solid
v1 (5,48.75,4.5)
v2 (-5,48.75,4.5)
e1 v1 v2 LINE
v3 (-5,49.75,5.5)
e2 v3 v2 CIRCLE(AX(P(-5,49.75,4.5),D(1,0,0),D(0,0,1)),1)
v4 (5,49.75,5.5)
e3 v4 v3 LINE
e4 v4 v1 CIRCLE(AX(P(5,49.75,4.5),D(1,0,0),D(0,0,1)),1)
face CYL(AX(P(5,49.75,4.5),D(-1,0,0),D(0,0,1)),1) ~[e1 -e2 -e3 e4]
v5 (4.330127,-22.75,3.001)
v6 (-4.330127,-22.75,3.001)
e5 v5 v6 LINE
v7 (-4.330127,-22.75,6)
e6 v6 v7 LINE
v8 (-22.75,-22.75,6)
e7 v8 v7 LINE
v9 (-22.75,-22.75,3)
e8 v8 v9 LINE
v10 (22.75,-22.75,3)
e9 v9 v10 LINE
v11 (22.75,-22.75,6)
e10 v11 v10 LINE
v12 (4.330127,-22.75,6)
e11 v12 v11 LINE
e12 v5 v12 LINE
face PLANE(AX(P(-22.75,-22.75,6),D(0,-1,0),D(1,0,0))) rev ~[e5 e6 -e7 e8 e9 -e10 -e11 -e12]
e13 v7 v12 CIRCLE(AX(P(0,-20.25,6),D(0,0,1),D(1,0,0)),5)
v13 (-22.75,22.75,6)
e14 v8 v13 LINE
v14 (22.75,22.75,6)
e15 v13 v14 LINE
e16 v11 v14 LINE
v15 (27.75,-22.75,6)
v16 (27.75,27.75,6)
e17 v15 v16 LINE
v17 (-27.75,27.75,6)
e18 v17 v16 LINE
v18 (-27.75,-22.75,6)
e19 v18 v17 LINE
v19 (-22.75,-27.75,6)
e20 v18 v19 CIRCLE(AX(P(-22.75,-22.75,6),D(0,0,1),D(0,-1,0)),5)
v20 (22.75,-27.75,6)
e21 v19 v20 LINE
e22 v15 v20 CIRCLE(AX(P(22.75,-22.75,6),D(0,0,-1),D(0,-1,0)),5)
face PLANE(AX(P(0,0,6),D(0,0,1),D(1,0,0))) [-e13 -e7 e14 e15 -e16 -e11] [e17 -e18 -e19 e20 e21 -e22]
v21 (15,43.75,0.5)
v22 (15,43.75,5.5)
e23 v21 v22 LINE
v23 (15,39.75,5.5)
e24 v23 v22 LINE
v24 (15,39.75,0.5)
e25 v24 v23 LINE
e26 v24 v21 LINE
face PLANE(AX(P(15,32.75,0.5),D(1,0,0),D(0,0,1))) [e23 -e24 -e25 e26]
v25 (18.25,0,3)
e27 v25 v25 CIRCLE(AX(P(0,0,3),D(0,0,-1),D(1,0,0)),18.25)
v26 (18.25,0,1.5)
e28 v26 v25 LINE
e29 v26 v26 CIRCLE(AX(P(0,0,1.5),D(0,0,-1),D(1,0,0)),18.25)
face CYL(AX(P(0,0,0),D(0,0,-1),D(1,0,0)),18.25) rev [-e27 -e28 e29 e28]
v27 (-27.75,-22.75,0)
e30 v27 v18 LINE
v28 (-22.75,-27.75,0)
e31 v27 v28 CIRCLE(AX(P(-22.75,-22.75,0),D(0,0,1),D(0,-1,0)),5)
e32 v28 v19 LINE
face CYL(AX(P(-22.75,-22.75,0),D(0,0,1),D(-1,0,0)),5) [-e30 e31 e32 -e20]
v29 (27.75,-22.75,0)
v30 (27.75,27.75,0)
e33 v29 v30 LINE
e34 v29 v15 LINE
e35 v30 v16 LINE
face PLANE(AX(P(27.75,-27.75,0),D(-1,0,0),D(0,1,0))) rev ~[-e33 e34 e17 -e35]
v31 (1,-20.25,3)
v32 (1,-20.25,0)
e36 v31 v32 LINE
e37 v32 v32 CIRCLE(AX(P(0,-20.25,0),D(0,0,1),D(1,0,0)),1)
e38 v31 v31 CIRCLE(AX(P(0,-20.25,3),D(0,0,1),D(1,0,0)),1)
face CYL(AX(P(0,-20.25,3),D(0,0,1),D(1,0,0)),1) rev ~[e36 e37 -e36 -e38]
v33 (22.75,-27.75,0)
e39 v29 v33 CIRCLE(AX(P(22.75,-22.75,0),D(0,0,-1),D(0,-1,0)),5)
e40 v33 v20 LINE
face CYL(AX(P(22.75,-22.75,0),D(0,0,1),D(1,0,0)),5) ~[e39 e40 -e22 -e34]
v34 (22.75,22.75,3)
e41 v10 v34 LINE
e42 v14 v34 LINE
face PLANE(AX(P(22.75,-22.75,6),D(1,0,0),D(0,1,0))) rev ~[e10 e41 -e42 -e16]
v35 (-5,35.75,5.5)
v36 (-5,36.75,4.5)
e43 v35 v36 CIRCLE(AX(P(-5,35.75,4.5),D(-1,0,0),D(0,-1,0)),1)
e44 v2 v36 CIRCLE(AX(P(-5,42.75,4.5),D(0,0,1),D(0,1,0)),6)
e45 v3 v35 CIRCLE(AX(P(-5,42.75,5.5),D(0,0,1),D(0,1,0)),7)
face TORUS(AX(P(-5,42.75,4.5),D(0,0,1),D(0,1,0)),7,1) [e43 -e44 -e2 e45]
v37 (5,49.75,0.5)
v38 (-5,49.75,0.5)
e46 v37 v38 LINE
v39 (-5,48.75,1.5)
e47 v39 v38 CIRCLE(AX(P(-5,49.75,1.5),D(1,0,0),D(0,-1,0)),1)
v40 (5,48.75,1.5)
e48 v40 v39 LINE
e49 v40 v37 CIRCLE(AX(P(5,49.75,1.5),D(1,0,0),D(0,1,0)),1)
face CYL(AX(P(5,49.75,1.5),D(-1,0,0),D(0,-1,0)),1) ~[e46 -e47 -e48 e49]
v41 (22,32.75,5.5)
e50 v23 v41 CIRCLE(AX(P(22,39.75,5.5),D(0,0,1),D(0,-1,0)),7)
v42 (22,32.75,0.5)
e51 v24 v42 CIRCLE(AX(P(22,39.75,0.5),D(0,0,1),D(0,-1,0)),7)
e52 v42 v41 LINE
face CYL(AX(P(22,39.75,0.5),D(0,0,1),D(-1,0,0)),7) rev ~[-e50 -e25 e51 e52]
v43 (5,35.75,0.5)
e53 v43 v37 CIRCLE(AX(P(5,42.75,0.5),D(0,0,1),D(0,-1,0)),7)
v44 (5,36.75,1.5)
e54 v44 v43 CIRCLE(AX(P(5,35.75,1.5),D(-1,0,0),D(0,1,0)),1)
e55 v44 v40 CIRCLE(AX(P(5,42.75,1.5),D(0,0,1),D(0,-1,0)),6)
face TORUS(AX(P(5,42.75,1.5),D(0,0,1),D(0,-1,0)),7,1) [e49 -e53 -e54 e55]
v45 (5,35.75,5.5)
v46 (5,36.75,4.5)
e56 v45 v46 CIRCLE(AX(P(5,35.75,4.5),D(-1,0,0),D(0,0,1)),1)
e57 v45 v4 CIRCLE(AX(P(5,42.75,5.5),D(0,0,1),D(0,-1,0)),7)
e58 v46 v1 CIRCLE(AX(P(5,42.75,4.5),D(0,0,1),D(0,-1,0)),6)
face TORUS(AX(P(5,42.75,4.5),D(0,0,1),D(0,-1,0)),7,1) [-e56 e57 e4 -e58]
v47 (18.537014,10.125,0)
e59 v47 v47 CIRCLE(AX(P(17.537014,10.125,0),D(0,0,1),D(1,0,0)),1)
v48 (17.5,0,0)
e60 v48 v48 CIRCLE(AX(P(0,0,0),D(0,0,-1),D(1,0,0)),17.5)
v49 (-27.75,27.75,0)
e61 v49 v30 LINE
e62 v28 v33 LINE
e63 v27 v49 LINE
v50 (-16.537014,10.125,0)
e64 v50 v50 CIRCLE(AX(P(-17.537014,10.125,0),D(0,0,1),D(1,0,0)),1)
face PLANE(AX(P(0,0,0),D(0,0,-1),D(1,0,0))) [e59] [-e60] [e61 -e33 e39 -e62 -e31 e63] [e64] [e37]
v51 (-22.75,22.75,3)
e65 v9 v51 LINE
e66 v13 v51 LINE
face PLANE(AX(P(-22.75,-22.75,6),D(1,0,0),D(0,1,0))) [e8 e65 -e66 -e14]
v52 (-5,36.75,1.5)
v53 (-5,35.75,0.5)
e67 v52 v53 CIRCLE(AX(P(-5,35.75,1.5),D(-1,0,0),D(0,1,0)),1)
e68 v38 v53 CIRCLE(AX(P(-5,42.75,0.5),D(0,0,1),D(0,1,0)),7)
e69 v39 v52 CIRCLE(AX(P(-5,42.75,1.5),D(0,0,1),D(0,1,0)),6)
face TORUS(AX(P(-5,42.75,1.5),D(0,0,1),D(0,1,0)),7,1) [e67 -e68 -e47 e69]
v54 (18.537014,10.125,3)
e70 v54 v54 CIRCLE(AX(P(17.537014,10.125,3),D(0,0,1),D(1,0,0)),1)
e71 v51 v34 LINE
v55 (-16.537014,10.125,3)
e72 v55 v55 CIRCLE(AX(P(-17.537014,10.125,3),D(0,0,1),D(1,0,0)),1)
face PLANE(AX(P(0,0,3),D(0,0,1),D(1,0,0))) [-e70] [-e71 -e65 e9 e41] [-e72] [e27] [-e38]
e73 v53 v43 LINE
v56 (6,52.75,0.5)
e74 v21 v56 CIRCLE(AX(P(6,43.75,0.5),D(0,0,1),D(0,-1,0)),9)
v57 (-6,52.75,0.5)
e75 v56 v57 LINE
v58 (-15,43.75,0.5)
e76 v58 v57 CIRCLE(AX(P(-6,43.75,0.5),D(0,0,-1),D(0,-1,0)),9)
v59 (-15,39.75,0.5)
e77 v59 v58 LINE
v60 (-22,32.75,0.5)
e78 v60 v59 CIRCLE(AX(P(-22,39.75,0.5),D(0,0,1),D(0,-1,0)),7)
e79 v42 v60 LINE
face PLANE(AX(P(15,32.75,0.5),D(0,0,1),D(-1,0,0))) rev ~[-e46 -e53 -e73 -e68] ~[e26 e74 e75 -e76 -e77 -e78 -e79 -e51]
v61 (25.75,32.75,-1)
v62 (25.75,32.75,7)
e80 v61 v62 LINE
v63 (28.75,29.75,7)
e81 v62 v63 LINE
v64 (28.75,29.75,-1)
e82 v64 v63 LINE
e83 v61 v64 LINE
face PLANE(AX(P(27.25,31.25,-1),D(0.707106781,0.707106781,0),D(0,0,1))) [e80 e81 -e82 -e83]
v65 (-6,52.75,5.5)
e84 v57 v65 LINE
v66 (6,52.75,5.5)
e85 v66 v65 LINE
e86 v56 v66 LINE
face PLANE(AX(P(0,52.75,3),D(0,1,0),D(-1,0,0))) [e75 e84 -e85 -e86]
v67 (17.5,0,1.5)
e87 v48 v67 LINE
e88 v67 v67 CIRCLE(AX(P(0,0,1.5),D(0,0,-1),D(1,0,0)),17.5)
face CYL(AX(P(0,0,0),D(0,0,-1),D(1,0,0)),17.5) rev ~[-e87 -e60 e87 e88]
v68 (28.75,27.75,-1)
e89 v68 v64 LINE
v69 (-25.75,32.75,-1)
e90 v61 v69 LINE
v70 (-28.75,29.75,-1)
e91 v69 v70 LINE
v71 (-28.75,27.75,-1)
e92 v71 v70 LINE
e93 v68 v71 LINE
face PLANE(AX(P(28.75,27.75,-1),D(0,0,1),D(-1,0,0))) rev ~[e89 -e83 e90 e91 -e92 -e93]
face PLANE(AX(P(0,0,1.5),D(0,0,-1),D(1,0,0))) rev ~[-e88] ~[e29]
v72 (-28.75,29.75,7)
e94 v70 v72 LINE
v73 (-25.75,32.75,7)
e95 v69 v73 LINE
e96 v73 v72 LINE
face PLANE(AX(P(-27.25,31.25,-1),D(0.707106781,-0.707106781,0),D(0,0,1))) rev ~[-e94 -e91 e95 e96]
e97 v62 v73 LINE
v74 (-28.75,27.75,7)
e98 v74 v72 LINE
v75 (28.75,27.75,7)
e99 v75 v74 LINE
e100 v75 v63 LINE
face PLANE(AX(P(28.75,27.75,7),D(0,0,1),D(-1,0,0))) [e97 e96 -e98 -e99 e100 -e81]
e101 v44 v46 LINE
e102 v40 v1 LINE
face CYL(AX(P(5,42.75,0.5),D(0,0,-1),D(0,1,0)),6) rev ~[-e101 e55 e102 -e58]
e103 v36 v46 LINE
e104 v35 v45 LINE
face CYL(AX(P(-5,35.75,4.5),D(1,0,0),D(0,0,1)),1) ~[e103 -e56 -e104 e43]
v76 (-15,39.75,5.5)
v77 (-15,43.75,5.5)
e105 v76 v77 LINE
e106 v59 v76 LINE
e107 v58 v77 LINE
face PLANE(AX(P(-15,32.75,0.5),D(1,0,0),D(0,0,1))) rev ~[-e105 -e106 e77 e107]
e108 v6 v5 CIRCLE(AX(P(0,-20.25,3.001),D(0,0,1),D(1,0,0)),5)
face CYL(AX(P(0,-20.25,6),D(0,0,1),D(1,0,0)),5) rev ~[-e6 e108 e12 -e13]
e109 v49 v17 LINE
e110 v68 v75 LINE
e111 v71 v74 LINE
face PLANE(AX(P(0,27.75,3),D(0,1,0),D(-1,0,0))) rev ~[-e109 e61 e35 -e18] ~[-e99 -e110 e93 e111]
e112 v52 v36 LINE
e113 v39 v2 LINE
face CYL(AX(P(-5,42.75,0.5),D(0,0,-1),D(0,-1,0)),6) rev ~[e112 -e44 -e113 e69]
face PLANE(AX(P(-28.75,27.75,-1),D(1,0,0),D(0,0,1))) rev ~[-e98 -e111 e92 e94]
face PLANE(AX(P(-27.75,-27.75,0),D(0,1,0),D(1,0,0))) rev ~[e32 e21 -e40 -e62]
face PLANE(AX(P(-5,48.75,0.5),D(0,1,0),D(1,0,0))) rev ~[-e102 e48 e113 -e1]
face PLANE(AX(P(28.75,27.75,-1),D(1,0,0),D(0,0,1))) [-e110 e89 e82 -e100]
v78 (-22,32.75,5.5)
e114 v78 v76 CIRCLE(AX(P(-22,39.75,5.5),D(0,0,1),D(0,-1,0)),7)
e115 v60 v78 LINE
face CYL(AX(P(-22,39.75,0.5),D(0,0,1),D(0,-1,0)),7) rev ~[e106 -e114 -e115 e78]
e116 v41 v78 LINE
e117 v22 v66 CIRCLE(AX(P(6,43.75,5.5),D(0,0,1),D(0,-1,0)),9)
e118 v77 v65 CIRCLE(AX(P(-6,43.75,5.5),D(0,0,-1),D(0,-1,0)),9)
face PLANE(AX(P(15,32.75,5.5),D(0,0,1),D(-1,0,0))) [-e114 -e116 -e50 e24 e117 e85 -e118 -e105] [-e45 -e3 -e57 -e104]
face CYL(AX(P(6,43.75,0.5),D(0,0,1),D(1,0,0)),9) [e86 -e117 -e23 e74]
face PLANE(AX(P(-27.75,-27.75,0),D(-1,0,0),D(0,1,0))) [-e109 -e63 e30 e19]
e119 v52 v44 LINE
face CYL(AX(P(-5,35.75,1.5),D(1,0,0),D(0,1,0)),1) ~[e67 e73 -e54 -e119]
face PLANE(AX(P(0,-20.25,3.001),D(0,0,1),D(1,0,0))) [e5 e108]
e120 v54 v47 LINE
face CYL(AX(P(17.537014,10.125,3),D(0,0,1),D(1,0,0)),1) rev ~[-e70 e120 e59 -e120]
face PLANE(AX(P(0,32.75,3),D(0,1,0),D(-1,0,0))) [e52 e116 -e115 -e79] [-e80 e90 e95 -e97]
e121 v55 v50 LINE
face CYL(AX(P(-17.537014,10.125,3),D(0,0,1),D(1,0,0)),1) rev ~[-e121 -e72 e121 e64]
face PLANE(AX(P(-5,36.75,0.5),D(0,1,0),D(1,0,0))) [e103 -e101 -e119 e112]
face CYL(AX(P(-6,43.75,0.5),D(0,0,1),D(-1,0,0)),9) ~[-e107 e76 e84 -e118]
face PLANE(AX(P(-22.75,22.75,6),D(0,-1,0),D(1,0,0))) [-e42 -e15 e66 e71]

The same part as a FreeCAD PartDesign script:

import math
import FreeCAD as App
import Part
import Sketcher
Q = App.Units.Quantity


def edges_at(feature, points):
    """Names of the edges that pass closest to the given points."""
    edges = feature.Shape.Edges
    near = lambda p: min(range(len(edges)), key=lambda i: edges[i].distToShape(Part.Vertex(*p))[0])
    return sorted({f"Edge{near(p) + 1}" for p in points})

doc = App.newDocument("Part")
body = doc.addObject("PartDesign::Body", "Body")

# Sketch on XY plane
sketch1 = body.newObject("Sketcher::SketchObject", "Sketch")
sketch1.AttachmentSupport = (doc.getObject("XY_Plane"), [""])
sketch1.MapMode = "FlatFace"
sketch1.addGeometry([
    Part.LineSegment(App.Vector(-28, 28, 0), App.Vector(-28, -28, 0)),  # 0
    Part.LineSegment(App.Vector(-28, -28, 0), App.Vector(28, -28, 0)),  # 1
    Part.LineSegment(App.Vector(28, -28, 0), App.Vector(28, 28, 0)),  # 2
    Part.LineSegment(App.Vector(28, 28, 0), App.Vector(-28, 28, 0)),  # 3
    Part.Circle(App.Vector(0, 0, 0), App.Vector(0, 0, 1), 18),  # 4
], False)
sketch1.addConstraint([
    Sketcher.Constraint("Coincident", 0, 2, 1, 1),
    Sketcher.Constraint("Coincident", 1, 2, 2, 1),
    Sketcher.Constraint("Coincident", 2, 2, 3, 1),
    Sketcher.Constraint("Coincident", 3, 2, 0, 1),
    Sketcher.Constraint("Vertical", 0),
    Sketcher.Constraint("Horizontal", 1),
    Sketcher.Constraint("Vertical", 2),
    Sketcher.Constraint("Horizontal", 3),
    Sketcher.Constraint("Coincident", 4, 3, -1, 1),
    Sketcher.Constraint("Symmetric", 0, 2, 2, 2, -1, 1),
    Sketcher.Constraint("Equal", 3, 0),
    Sketcher.Constraint("Diameter", 4, Q("36.5 mm")),
    Sketcher.Constraint("DistanceX", 1, 1, 1, 2, Q("55.5 mm")),
])
pad1 = body.newObject("PartDesign::Pad", "Pad")
pad1.Profile = sketch1
pad1.Length = 6

# Sketch on XZ plane
sketch2 = body.newObject("Sketcher::SketchObject", "Sketch001")
sketch2.AttachmentSupport = (doc.getObject("XZ_Plane"), [""])
sketch2.MapMode = "FlatFace"
sketch2.AttachmentOffset = App.Placement(App.Vector(0, 0, -27.75), App.Rotation())
sketch2.addGeometry([
    Part.LineSegment(App.Vector(29, 7, 0), App.Vector(29, -1, 0)),
    Part.LineSegment(App.Vector(29, -1, 0), App.Vector(-29, -1, 0)),
    Part.LineSegment(App.Vector(-29, -1, 0), App.Vector(-29, 7, 0)),
    Part.LineSegment(App.Vector(-29, 7, 0), App.Vector(29, 7, 0)),
], False)
sketch2.addConstraint([
    Sketcher.Constraint("Coincident", 0, 2, 1, 1),
    Sketcher.Constraint("Coincident", 1, 2, 2, 1),
    Sketcher.Constraint("Coincident", 2, 2, 3, 1),
    Sketcher.Constraint("Coincident", 3, 2, 0, 1),
    Sketcher.Constraint("Vertical", 0),
    Sketcher.Constraint("Horizontal", 1),
    Sketcher.Constraint("Vertical", 2),
    Sketcher.Constraint("Horizontal", 3),
    Sketcher.Constraint("DistanceY", 0, 2, 0, 1, Q("8 mm")),
    Sketcher.Constraint("DistanceX", 1, 2, 1, 1, Q("57.5 mm")),
    Sketcher.Constraint("DistanceY", 0, 2, -1, 1, Q("1 mm")),
    Sketcher.Constraint("DistanceX", -1, 1, 0, 2, Q("28.75 mm")),
])
pad2 = body.newObject("PartDesign::Pad", "Pad001")
pad2.Profile = sketch2
pad2.Length = 5
pad2.Reversed = True

# Sketch on XZ plane
sketch3 = body.newObject("Sketcher::SketchObject", "Sketch002")
sketch3.AttachmentSupport = (doc.getObject("XZ_Plane"), [""])
sketch3.MapMode = "FlatFace"
sketch3.AttachmentOffset = App.Placement(App.Vector(0, 0, -32.75), App.Rotation())
sketch3.addGeometry([
    Part.LineSegment(App.Vector(15, 6, 0), App.Vector(15, 0, 0)),
    Part.LineSegment(App.Vector(15, 0, 0), App.Vector(-15, 0, 0)),
    Part.LineSegment(App.Vector(-15, 0, 0), App.Vector(-15, 6, 0)),
    Part.LineSegment(App.Vector(-15, 6, 0), App.Vector(15, 6, 0)),
], False)
sketch3.addConstraint([
    Sketcher.Constraint("Coincident", 0, 2, 1, 1),
    Sketcher.Constraint("Coincident", 1, 2, 2, 1),
    Sketcher.Constraint("Coincident", 2, 2, 3, 1),
    Sketcher.Constraint("Coincident", 3, 2, 0, 1),
    Sketcher.Constraint("Vertical", 0),
    Sketcher.Constraint("Horizontal", 1),
    Sketcher.Constraint("Vertical", 2),
    Sketcher.Constraint("Horizontal", 3),
    Sketcher.Constraint("DistanceX", 1, 2, 1, 1, Q("30 mm")),
    Sketcher.Constraint("DistanceY", 0, 2, 0, 1, Q("5 mm")),
    Sketcher.Constraint("DistanceX", -1, 1, 0, 2, Q("15 mm")),
    Sketcher.Constraint("DistanceY", -1, 1, 0, 2, Q("0.5 mm")),
])
pad3 = body.newObject("PartDesign::Pad", "Pad002")
pad3.Profile = sketch3
pad3.Length = 20
pad3.Reversed = True
doc.recompute()

fillet = body.newObject("PartDesign::Fillet", "Fillet")
fillet.Base = (pad3, edges_at(pad3, [(-27.75, -27.75, 3), (27.75, -27.75, 3)]))
fillet.Radius = 5

# Sketch on XY plane
sketch4 = body.newObject("Sketcher::SketchObject", "Sketch003")
sketch4.AttachmentSupport = (doc.getObject("XY_Plane"), [""])
sketch4.MapMode = "FlatFace"
sketch4.AttachmentOffset = App.Placement(App.Vector(0, 0, 0.5), App.Rotation())
sketch4.addGeometry([
    Part.ArcOfCircle(Part.Circle(App.Vector(-5, 43, 0), App.Vector(0, 0, 1), 6), math.radians(90), math.radians(270)),
    Part.LineSegment(App.Vector(-5, 49, 0), App.Vector(5, 49, 0)),
    Part.ArcOfCircle(Part.Circle(App.Vector(5, 43, 0), App.Vector(0, 0, 1), 6), math.radians(-90), math.radians(90)),
    Part.LineSegment(App.Vector(5, 37, 0), App.Vector(-5, 37, 0)),
], False)
sketch4.addConstraint([
    Sketcher.Constraint("Tangent", 0, 1, 1, 1),
    Sketcher.Constraint("Tangent", 1, 2, 2, 2),
    Sketcher.Constraint("Tangent", 2, 1, 3, 1),
    Sketcher.Constraint("Tangent", 3, 2, 0, 2),
    Sketcher.Constraint("Horizontal", 1),
    Sketcher.Constraint("Horizontal", 3),
    Sketcher.Constraint("Radius", 0, Q("6 mm")),
    Sketcher.Constraint("DistanceX", 1, 1, 1, 2, Q("10 mm")),
    Sketcher.Constraint("DistanceX", 0, 3, -1, 1, Q("5 mm")),
    Sketcher.Constraint("DistanceY", -1, 1, 0, 3, Q("42.75 mm")),
])
pocket1 = body.newObject("PartDesign::Pocket", "Pocket")
pocket1.Profile = sketch4
pocket1.Length = 6
pocket1.Reversed = True
doc.recompute()

fillet2 = body.newObject("PartDesign::Fillet", "Fillet001")
fillet2.Base = (pocket1, edges_at(pocket1, [(15, 52.75, 3), (-15, 52.75, 3)]))
fillet2.Radius = 9
doc.recompute()

fillet3 = body.newObject("PartDesign::Fillet", "Fillet002")
fillet3.Base = (fillet2, edges_at(fillet2, [(15, 32.75, 3), (-15, 32.75, 3)]))
fillet3.Radius = 7
doc.recompute()

chamfer = body.newObject("PartDesign::Chamfer", "Chamfer")
chamfer.Base = (fillet3, edges_at(fillet3, [(-28.75, 32.75, 3), (28.75, 32.75, 3)]))
chamfer.Size = 3

# Sketch on XY plane
sketch5 = body.newObject("Sketcher::SketchObject", "Sketch004")
sketch5.AttachmentSupport = (doc.getObject("XY_Plane"), [""])
sketch5.MapMode = "FlatFace"
sketch5.addGeometry([
    Part.Circle(App.Vector(0, 0, 0), App.Vector(0, 0, 1), 18),
    Part.Circle(App.Vector(0, 0, 0), App.Vector(0, 0, 1), 18),
], False)
sketch5.addConstraint([
    Sketcher.Constraint("Coincident", 0, 3, -1, 1),
    Sketcher.Constraint("Coincident", 1, 3, -1, 1),
    Sketcher.Constraint("Diameter", 1, Q("35 mm")),
    Sketcher.Constraint("Diameter", 0, Q("36.5 mm")),
])
pad4 = body.newObject("PartDesign::Pad", "Pad003")
pad4.Profile = sketch5
pad4.Length = 1.5

# Sketch on XY plane
sketch6 = body.newObject("Sketcher::SketchObject", "Sketch005")
sketch6.AttachmentSupport = (doc.getObject("XY_Plane"), [""])
sketch6.MapMode = "FlatFace"
sketch6.AttachmentOffset = App.Placement(App.Vector(0, 0, 6), App.Rotation())
sketch6.addGeometry([
    Part.LineSegment(App.Vector(-23, 23, 0), App.Vector(-23, -23, 0)),
    Part.LineSegment(App.Vector(-23, -23, 0), App.Vector(23, -23, 0)),
    Part.LineSegment(App.Vector(23, -23, 0), App.Vector(23, 23, 0)),
    Part.LineSegment(App.Vector(23, 23, 0), App.Vector(-23, 23, 0)),
], False)
sketch6.addConstraint([
    Sketcher.Constraint("Coincident", 0, 2, 1, 1),
    Sketcher.Constraint("Coincident", 1, 2, 2, 1),
    Sketcher.Constraint("Coincident", 2, 2, 3, 1),
    Sketcher.Constraint("Coincident", 3, 2, 0, 1),
    Sketcher.Constraint("Vertical", 0),
    Sketcher.Constraint("Horizontal", 1),
    Sketcher.Constraint("Vertical", 2),
    Sketcher.Constraint("Horizontal", 3),
    Sketcher.Constraint("Symmetric", 0, 2, 2, 2, -1, 1),
    Sketcher.Constraint("Equal", 3, 0),
    Sketcher.Constraint("DistanceX", 1, 1, 1, 2, Q("45.5 mm")),
])
pocket2 = body.newObject("PartDesign::Pocket", "Pocket001")
pocket2.Profile = sketch6
pocket2.Length = 3

# Sketch on XY plane
sketch7 = body.newObject("Sketcher::SketchObject", "Sketch006")
sketch7.AttachmentSupport = (doc.getObject("XY_Plane"), [""])
sketch7.MapMode = "FlatFace"
sketch7.AttachmentOffset = App.Placement(App.Vector(0, 0, 3), App.Rotation())
sketch7.addGeometry([
    Part.Circle(App.Vector(-17.5, 10.1, 0), App.Vector(0, 0, 1), 1),
    Part.Circle(App.Vector(17.5, 10.1, 0), App.Vector(0, 0, 1), 1),
    Part.Circle(App.Vector(0, -20.2, 0), App.Vector(0, 0, 1), 1),
], False)
sketch7.addConstraint([
    Sketcher.Constraint("Equal", 0, 1),
    Sketcher.Constraint("Equal", 1, 2),
    Sketcher.Constraint("Symmetric", 0, 3, 1, 3, -2),
    Sketcher.Constraint("PointOnObject", 2, 3, -2),
    Sketcher.Constraint("Diameter", 0, Q("2 mm")),
    Sketcher.Constraint("DistanceY", 2, 3, -1, 1, Q("20.25 mm")),
    Sketcher.Constraint("DistanceY", -1, 1, 0, 3, Q("10.125 mm")),
    Sketcher.Constraint("DistanceX", 0, 3, -1, 1, Q("17.537014 mm")),
])
pocket3 = body.newObject("PartDesign::Pocket", "Pocket002")
pocket3.Profile = sketch7
pocket3.Length = 6
doc.recompute()

fillet4 = body.newObject("PartDesign::Fillet", "Fillet003")
fillet4.Base = (pocket3, edges_at(pocket3, [(0, 48.75, 5.5)]))
fillet4.Radius = 1
doc.recompute()

fillet5 = body.newObject("PartDesign::Fillet", "Fillet004")
fillet5.Base = (fillet4, edges_at(fillet4, [(0, 36.75, 0.5)]))
fillet5.Radius = 1

# Sketch on XY plane
sketch8 = body.newObject("Sketcher::SketchObject", "Sketch007")
sketch8.AttachmentSupport = (doc.getObject("XY_Plane"), [""])
sketch8.MapMode = "FlatFace"
sketch8.AttachmentOffset = App.Placement(App.Vector(0, 0, 6), App.Rotation())
sketch8.addGeometry(Part.Circle(App.Vector(0, -20, 0), App.Vector(0, 0, 1), 5), False)
sketch8.addConstraint([
    Sketcher.Constraint("PointOnObject", 0, 3, -2),
    Sketcher.Constraint("Diameter", 0, Q("10 mm")),
    Sketcher.Constraint("DistanceY", 0, 3, -1, 1, Q("20.25 mm")),
])
pocket4 = body.newObject("PartDesign::Pocket", "Pocket003")
pocket4.Profile = sketch8
pocket4.Length = 2.999

doc.recompute()
